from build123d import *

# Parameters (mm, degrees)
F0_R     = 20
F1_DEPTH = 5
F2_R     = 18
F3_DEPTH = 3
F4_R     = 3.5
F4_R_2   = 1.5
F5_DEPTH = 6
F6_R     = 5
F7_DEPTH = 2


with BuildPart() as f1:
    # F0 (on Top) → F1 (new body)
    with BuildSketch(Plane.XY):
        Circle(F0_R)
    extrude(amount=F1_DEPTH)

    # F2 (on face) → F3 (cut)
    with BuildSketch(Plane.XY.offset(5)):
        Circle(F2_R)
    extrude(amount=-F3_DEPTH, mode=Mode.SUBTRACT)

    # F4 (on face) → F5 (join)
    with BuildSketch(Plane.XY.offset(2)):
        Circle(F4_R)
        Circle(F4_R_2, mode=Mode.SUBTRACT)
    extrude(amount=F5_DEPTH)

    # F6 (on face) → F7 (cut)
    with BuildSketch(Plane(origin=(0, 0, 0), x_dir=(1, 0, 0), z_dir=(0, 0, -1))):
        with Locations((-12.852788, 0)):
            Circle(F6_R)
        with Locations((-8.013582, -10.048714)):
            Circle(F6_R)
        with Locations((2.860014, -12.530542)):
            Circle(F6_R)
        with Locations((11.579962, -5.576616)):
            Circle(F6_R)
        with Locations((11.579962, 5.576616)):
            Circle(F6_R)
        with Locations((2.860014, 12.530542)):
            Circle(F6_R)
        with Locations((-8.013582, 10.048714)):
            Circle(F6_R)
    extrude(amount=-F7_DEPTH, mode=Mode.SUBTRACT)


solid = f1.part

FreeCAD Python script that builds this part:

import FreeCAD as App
import Part
import Sketcher

doc = App.newDocument("Part")
body = doc.addObject("PartDesign::Body", "Body")

sketch1 = body.newObject("Sketcher::SketchObject", "Sketch")
sketch1.AttachmentSupport = (doc.getObject("XY_Plane"), [""])
sketch1.MapMode = "FlatFace"
sketch1.addGeometry(Part.Circle(App.Vector(0, 0, 0), App.Vector(0, 0, 1), 20), False)
sketch1.addConstraint(Sketcher.Constraint("Coincident", 0, 3, -1, 1))
sketch1.addConstraint(Sketcher.Constraint("Diameter", 0, 40.0))
pad1 = body.newObject("PartDesign::Pad", "Pad")
pad1.Profile = sketch1
pad1.Length = 5

sketch2 = body.newObject("Sketcher::SketchObject", "Sketch001")
sketch2.AttachmentSupport = (doc.getObject("XY_Plane"), [""])
sketch2.MapMode = "FlatFace"
sketch2.AttachmentOffset = App.Placement(App.Vector(0, 0, 5), App.Rotation())
sketch2.addGeometry(Part.Circle(App.Vector(0, 0, 0), App.Vector(0, 0, 1), 18), False)
sketch2.addConstraint(Sketcher.Constraint("Coincident", 0, 3, -1, 1))
sketch2.addConstraint(Sketcher.Constraint("Diameter", 0, 36.0))
pocket1 = body.newObject("PartDesign::Pocket", "Pocket")
pocket1.Profile = sketch2
pocket1.Length = 3

sketch3 = body.newObject("Sketcher::SketchObject", "Sketch002")
sketch3.AttachmentSupport = (doc.getObject("XY_Plane"), [""])
sketch3.MapMode = "FlatFace"
sketch3.AttachmentOffset = App.Placement(App.Vector(0, 0, 2), App.Rotation())
sketch3.addGeometry(Part.Circle(App.Vector(0, 0, 0), App.Vector(0, 0, 1), 3.5), False)
sketch3.addGeometry(Part.Circle(App.Vector(0, 0, 0), App.Vector(0, 0, 1), 1.5), False)
sketch3.addConstraint(Sketcher.Constraint("Coincident", 0, 3, -1, 1))
sketch3.addConstraint(Sketcher.Constraint("Coincident", 1, 3, -1, 1))
sketch3.addConstraint(Sketcher.Constraint("Diameter", 0, 7.0))
sketch3.addConstraint(Sketcher.Constraint("Diameter", 1, 3.0))
pad2 = body.newObject("PartDesign::Pad", "Pad001")
pad2.Profile = sketch3
pad2.Length = 6

sketch4 = body.newObject("Sketcher::SketchObject", "Sketch003")
sketch4.AttachmentSupport = (doc.getObject("XY_Plane"), [""])
sketch4.MapMode = "FlatFace"
sketch4.addGeometry(Part.Circle(App.Vector(-12.852788, 0, 0), App.Vector(0, 0, 1), 5), False)
sketch4.addGeometry(Part.Circle(App.Vector(-8.013582, 10.048714, 0), App.Vector(0, 0, 1), 5), False)
sketch4.addGeometry(Part.Circle(App.Vector(2.860014, 12.530542, 0), App.Vector(0, 0, 1), 5), False)
sketch4.addGeometry(Part.Circle(App.Vector(11.579962, 5.576616, 0), App.Vector(0, 0, 1), 5), False)
sketch4.addGeometry(Part.Circle(App.Vector(11.579962, -5.576616, 0), App.Vector(0, 0, 1), 5), False)
sketch4.addGeometry(Part.Circle(App.Vector(2.860014, -12.530542, 0), App.Vector(0, 0, 1), 5), False)
sketch4.addGeometry(Part.Circle(App.Vector(-8.013582, -10.048714, 0), App.Vector(0, 0, 1), 5), False)
sketch4.addConstraint(Sketcher.Constraint("Equal", 0, 1))
sketch4.addConstraint(Sketcher.Constraint("Equal", 1, 2))
sketch4.addConstraint(Sketcher.Constraint("Equal", 2, 3))
sketch4.addConstraint(Sketcher.Constraint("Equal", 3, 4))
sketch4.addConstraint(Sketcher.Constraint("Equal", 4, 5))
sketch4.addConstraint(Sketcher.Constraint("Equal", 5, 6))
sketch4.addConstraint(Sketcher.Constraint("Symmetric", 3, 3, 4, 3, -1))
sketch4.addConstraint(Sketcher.Constraint("Symmetric", 2, 3, 5, 3, -1))
sketch4.addConstraint(Sketcher.Constraint("Symmetric", 1, 3, 6, 3, -1))
sketch4.addConstraint(Sketcher.Constraint("PointOnObject", 0, 3, -1))
sketch4.addConstraint(Sketcher.Constraint("Diameter", 0, 10.0))
sketch4.addConstraint(Sketcher.Constraint("DistanceY", 3, 3, 1, 3, 4.472098))
sketch4.addConstraint(Sketcher.Constraint("DistanceY", 1, 3, 2, 3, 2.481828))
sketch4.addConstraint(Sketcher.Constraint("DistanceX", 0, 3, 3, 3, 24.43275))
sketch4.addConstraint(Sketcher.Constraint("DistanceY", 4, 3, 3, 3, 11.153232))
sketch4.addConstraint(Sketcher.Constraint("DistanceX", 0, 3, -1, 1, 12.852788))
sketch4.addConstraint(Sketcher.Constraint("DistanceX", 1, 3, -1, 1, 8.013582))
sketch4.addConstraint(Sketcher.Constraint("DistanceX", -1, 1, 2, 3, 2.860014))
pocket2 = body.newObject("PartDesign::Pocket", "Pocket001")
pocket2.Profile = sketch4
pocket2.Length = 2
pocket2.Reversed = True

doc.recompute()
